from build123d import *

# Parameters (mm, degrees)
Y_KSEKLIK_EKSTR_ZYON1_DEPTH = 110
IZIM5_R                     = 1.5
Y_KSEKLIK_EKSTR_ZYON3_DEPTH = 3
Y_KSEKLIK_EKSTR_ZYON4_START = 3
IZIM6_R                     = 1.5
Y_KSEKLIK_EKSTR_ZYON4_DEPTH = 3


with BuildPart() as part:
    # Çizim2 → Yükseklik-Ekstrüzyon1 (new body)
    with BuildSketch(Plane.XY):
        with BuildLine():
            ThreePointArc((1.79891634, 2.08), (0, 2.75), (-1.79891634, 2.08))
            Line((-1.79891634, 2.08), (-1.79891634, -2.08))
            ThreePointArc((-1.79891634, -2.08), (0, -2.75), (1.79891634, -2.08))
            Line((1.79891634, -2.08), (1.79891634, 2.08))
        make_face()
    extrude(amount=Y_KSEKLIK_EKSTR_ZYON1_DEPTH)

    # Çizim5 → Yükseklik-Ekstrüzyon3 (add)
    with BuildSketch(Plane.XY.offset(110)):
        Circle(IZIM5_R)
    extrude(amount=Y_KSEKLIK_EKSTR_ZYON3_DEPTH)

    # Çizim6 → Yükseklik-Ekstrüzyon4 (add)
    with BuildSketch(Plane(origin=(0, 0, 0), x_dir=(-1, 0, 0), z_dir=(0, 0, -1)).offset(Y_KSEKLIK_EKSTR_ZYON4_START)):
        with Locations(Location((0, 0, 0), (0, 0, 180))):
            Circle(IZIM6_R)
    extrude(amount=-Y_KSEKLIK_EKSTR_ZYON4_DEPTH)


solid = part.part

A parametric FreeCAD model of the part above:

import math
import FreeCAD as App
import Part
import Sketcher
from FreeCAD import Vector

doc = App.newDocument("Part")
body = doc.addObject("PartDesign::Body", "Body")

sketch1 = body.newObject("Sketcher::SketchObject", "Sketch")
sketch1.AttachmentSupport = (doc.getObject("XY_Plane"), [""])
sketch1.MapMode = "FlatFace"
sketch1.addGeometry([
    Part.ArcOfCircle(Part.Circle(Vector(0, 0, 0), Vector(0, 0, 1), 2.7), math.radians(49), math.radians(131)),
    Part.LineSegment(Vector(-1.8, 2.1, 0), Vector(-1.8, -2.1, 0)),
    Part.ArcOfCircle(Part.Circle(Vector(0, 0, 0), Vector(0, 0, 1), 2.7), math.radians(-131), math.radians(-49)),
    Part.LineSegment(Vector(1.8, -2.1, 0), Vector(1.8, 2.1, 0)),
], False)
sketch1.addConstraint([
    Sketcher.Constraint("Coincident", 0, 2, 1, 1),
    Sketcher.Constraint("Coincident", 1, 2, 2, 1),
    Sketcher.Constraint("Coincident", 2, 2, 3, 1),
    Sketcher.Constraint("Coincident", 3, 2, 0, 1),
    Sketcher.Constraint("Vertical", 1),
    Sketcher.Constraint("Vertical", 3),
    Sketcher.Constraint("Coincident", 0, 3, -1, 1),
    Sketcher.Constraint("Coincident", 2, 3, -1, 1),
    Sketcher.Constraint("Equal", 0, 2),
    Sketcher.Constraint("Horizontal", 1, 2, 2, 2),
    Sketcher.Constraint("Radius", 0, 2.75),
    Sketcher.Constraint("DistanceY", 1, 2, 1, 1, 4.16),
])
pad1 = body.newObject("PartDesign::Pad", "Pad")
pad1.Profile = sketch1
pad1.Length = 110

sketch2 = body.newObject("Sketcher::SketchObject", "Sketch001")
sketch2.AttachmentSupport = (doc.getObject("XY_Plane"), [""])
sketch2.MapMode = "FlatFace"
sketch2.AttachmentOffset = App.Placement(Vector(0, 0, 110), App.Rotation())
sketch2.addGeometry(Part.Circle(Vector(0, 0, 0), Vector(0, 0, 1), 1.5), False)
sketch2.addConstraint([
    Sketcher.Constraint("Coincident", 0, 3, -1, 1),
    Sketcher.Constraint("Diameter", 0, 3.0),
])
pad2 = body.newObject("PartDesign::Pad", "Pad001")
pad2.Profile = sketch2
pad2.Length = 3

sketch3 = body.newObject("Sketcher::SketchObject", "Sketch002")
sketch3.AttachmentSupport = (doc.getObject("XY_Plane"), [""])
sketch3.MapMode = "FlatFace"
sketch3.AttachmentOffset = App.Placement(Vector(0, 0, -3), App.Rotation())
sketch3.addGeometry(Part.Circle(Vector(0, 0, 0), Vector(0, 0, 1), 1.5), False)
sketch3.addConstraint([
    Sketcher.Constraint("Coincident", 0, 3, -1, 1),
    Sketcher.Constraint("Diameter", 0, 3.0),
])
pad3 = body.newObject("PartDesign::Pad", "Pad002")
pad3.Profile = sketch3
pad3.Length = 3

doc.recompute()
